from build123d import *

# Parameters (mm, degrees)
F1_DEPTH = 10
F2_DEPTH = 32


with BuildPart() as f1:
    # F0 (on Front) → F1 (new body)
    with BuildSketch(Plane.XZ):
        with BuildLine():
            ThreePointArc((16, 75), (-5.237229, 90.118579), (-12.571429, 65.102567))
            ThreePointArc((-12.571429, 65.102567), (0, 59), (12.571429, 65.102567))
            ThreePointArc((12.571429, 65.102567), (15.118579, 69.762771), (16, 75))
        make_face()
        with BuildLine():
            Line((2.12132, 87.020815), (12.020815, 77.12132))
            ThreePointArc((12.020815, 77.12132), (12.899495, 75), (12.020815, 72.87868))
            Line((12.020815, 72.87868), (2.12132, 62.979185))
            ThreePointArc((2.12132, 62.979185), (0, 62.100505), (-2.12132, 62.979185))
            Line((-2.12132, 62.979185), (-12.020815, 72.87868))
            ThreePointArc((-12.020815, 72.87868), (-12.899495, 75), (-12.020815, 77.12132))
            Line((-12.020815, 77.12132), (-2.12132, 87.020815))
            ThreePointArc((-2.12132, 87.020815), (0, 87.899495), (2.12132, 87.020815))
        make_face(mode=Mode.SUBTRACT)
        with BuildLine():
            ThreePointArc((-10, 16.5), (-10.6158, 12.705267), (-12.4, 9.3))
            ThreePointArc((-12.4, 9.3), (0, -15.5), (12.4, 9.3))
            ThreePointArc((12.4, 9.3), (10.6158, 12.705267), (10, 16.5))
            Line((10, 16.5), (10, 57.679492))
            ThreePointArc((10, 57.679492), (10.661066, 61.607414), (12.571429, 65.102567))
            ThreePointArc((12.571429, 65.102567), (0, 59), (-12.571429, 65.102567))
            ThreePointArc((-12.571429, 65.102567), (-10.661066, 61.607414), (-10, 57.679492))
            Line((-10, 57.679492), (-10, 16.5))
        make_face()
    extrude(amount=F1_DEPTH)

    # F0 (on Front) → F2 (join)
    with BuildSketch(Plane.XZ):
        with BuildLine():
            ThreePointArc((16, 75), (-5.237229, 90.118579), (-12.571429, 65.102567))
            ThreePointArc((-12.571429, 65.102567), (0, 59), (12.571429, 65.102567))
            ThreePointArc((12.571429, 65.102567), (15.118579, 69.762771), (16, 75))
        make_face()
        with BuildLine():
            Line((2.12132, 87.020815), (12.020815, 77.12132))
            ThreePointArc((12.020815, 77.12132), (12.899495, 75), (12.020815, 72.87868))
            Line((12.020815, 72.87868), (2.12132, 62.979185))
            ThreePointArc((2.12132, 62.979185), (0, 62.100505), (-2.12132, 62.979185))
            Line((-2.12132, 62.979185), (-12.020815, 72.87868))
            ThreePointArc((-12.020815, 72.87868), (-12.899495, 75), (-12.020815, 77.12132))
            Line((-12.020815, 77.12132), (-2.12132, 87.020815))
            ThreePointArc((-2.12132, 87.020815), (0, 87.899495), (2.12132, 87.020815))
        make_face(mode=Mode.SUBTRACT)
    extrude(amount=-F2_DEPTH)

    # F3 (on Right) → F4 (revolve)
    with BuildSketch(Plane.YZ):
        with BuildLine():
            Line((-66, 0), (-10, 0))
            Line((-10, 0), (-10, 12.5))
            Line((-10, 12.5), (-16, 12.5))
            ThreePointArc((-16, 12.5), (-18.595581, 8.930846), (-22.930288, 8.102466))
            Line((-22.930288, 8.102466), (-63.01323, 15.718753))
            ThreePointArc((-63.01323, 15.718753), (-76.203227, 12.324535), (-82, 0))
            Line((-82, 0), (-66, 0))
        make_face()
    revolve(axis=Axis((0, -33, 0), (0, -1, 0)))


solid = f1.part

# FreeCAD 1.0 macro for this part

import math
import FreeCAD as App
import Part
import Sketcher
from FreeCAD import Vector
Q = App.Units.Quantity

doc = App.newDocument("Part")
body = doc.addObject("PartDesign::Body", "Body")

# Sketch on XZ plane
sketch1 = doc.addObject("Sketcher::SketchObject", "Sketch")
body.addObject(sketch1)
sketch1.AttachmentSupport = (doc.XZ_Plane, [""])
sketch1.MapMode = "FlatFace"
sketch1.addGeometry(Part.ArcOfCircle(Part.Circle(Vector(0, 75, 0), Vector(0, 0, 1), 16), math.radians(0.000001), math.radians(218.213209)), False)
sketch1.addGeometry(Part.ArcOfCircle(Part.Circle(Vector(-22.000001, 57.679491, 0), Vector(0, 0, 1), 12.000001), math.radians(0.000003), math.radians(38.213213)), False)
sketch1.addGeometry(Part.LineSegment(Vector(-10, 57.679492, 0), Vector(-10, 16.5, 0)), False)
sketch1.addGeometry(Part.ArcOfCircle(Part.Circle(Vector(-21.999994, 16.499998, 0), Vector(0, 0, 1), 11.999994), math.radians(-36.869908), math.radians(0.00001)), False)
sketch1.addGeometry(Part.ArcOfCircle(Part.Circle(Vector(0, 0, 0), Vector(0, 0, 1), 15.5), math.radians(143.130102), math.radians(396.869898)), False)
sketch1.addGeometry(Part.ArcOfCircle(Part.Circle(Vector(21.999994, 16.499998, 0), Vector(0, 0, 1), 11.999994), math.radians(179.99999), math.radians(216.869908)), False)
sketch1.addGeometry(Part.LineSegment(Vector(10, 16.5, 0), Vector(10, 57.679492, 0)), False)
sketch1.addGeometry(Part.ArcOfCircle(Part.Circle(Vector(22.000001, 57.679491, 0), Vector(0, 0, 1), 12.000001), math.radians(141.786787), math.radians(179.999997)), False)
sketch1.addGeometry(Part.ArcOfCircle(Part.Circle(Vector(-0.000003, 75.000001, 0), Vector(0, 0, 1), 16.000003), math.radians(-38.213205), math.radians(-0.000002)), False)
sketch1.addGeometry(Part.ArcOfCircle(Part.Circle(Vector(0, 84.899497, 0), Vector(0, 0, 1), 2.999998), math.radians(44.999978), math.radians(135.000022)), False)
sketch1.addGeometry(Part.LineSegment(Vector(2.12132, 87.020815, 0), Vector(12.020815, 77.12132, 0)), False)
sketch1.addGeometry(Part.ArcOfCircle(Part.Circle(Vector(9.899497, 75, 0), Vector(0, 0, 1), 2.999998), math.radians(-45.000022), math.radians(45.000022)), False)
sketch1.addGeometry(Part.LineSegment(Vector(12.020815, 72.87868, 0), Vector(2.12132, 62.979185, 0)), False)
sketch1.addGeometry(Part.ArcOfCircle(Part.Circle(Vector(0, 65.100503, 0), Vector(0, 0, 1), 2.999998), math.radians(-135.000022), math.radians(-44.999978)), False)
sketch1.addGeometry(Part.LineSegment(Vector(-2.12132, 62.979185, 0), Vector(-12.020815, 72.87868, 0)), False)
sketch1.addGeometry(Part.ArcOfCircle(Part.Circle(Vector(-9.899497, 75, 0), Vector(0, 0, 1), 2.999998), math.radians(134.999978), math.radians(225.000022)), False)
sketch1.addGeometry(Part.LineSegment(Vector(-12.020815, 77.12132, 0), Vector(-2.12132, 87.020815, 0)), False)
sketch1.addConstraint(Sketcher.Constraint("Tangent", 0, 2, 1, 2))
sketch1.addConstraint(Sketcher.Constraint("Tangent", 1, 1, 2, 1))
sketch1.addConstraint(Sketcher.Constraint("Tangent", 2, 2, 3, 2))
sketch1.addConstraint(Sketcher.Constraint("Tangent", 3, 1, 4, 1))
sketch1.addConstraint(Sketcher.Constraint("Tangent", 4, 2, 5, 2))
sketch1.addConstraint(Sketcher.Constraint("Tangent", 5, 1, 6, 1))
sketch1.addConstraint(Sketcher.Constraint("Tangent", 6, 2, 7, 2))
sketch1.addConstraint(Sketcher.Constraint("Tangent", 7, 1, 8, 1))
sketch1.addConstraint(Sketcher.Constraint("Tangent", 8, 2, 0, 1))
sketch1.addConstraint(Sketcher.Constraint("Tangent", 9, 1, 10, 1))
sketch1.addConstraint(Sketcher.Constraint("Tangent", 10, 2, 11, 2))
sketch1.addConstraint(Sketcher.Constraint("Tangent", 11, 1, 12, 1))
sketch1.addConstraint(Sketcher.Constraint("Tangent", 12, 2, 13, 2))
sketch1.addConstraint(Sketcher.Constraint("Tangent", 13, 1, 14, 1))
sketch1.addConstraint(Sketcher.Constraint("Tangent", 14, 2, 15, 2))
sketch1.addConstraint(Sketcher.Constraint("Tangent", 15, 1, 16, 1))
sketch1.addConstraint(Sketcher.Constraint("Tangent", 16, 2, 9, 2))
sketch1.addConstraint(Sketcher.Constraint("Vertical", 2))
sketch1.addConstraint(Sketcher.Constraint("Vertical", 6))
sketch1.addConstraint(Sketcher.Constraint("Coincident", 4, 3, -1, 1))
sketch1.addConstraint(Sketcher.Constraint("Equal", 3, 5))
sketch1.addConstraint(Sketcher.Constraint("Equal", 1, 7))
sketch1.addConstraint(Sketcher.Constraint("Equal", 9, 11))
sketch1.addConstraint(Sketcher.Constraint("Equal", 11, 13))
sketch1.addConstraint(Sketcher.Constraint("Equal", 13, 15))
sketch1.addConstraint(Sketcher.Constraint("Symmetric", 1, 3, 7, 3, -2))
sketch1.addConstraint(Sketcher.Constraint("Symmetric", 11, 3, 15, 3, -2))
sketch1.addConstraint(Sketcher.Constraint("PointOnObject", 0, 3, -2))
sketch1.addConstraint(Sketcher.Constraint("PointOnObject", 9, 3, -2))
sketch1.addConstraint(Sketcher.Constraint("PointOnObject", 13, 3, -2))
sketch1.addConstraint(Sketcher.Constraint("Perpendicular", 10, 12))
sketch1.addConstraint(Sketcher.Constraint("Perpendicular", 12, 14))
sketch1.addConstraint(Sketcher.Constraint("Horizontal", 8, 3, 11, 3))
sketch1.addConstraint(Sketcher.Constraint("Horizontal", 15, 3, 8, 2))
sketch1.addConstraint(Sketcher.Constraint("Radius", 0, Q("16 mm")))
sketch1.addConstraint(Sketcher.Constraint("Radius", 1, Q("12.000001 mm")))
sketch1.addConstraint(Sketcher.Constraint("Radius", 9, Q("2.999998 mm")))
sketch1.addConstraint(Sketcher.Constraint("Radius", 4, Q("15.5 mm")))
sketch1.addConstraint(Sketcher.Constraint("Distance", 10, Q("14 mm")))
sketch1.addConstraint(Sketcher.Constraint("DistanceY", -1, 1, 0, 3, Q("75 mm")))
sketch1.addConstraint(Sketcher.Constraint("DistanceX", 1, 3, -1, 1, Q("22.000001 mm")))
sketch1.addConstraint(Sketcher.Constraint("DistanceY", -1, 1, 2, 2, Q("16.5 mm")))
pad1 = doc.addObject("PartDesign::Pad", "Pad")
body.addObject(pad1)
pad1.Profile = sketch1
pad1.Length = 10

# Sketch on XZ plane
sketch2 = doc.addObject("Sketcher::SketchObject", "Sketch001")
body.addObject(sketch2)
sketch2.AttachmentSupport = (doc.XZ_Plane, [""])
sketch2.MapMode = "FlatFace"
sketch2.addGeometry(Part.ArcOfCircle(Part.Circle(Vector(0, 75, 0), Vector(0, 0, 1), 16), math.radians(0.000001), math.radians(218.213209)), False)
sketch2.addGeometry(Part.ArcOfCircle(Part.Circle(Vector(0, 75.000001, 0), Vector(0, 0, 1), 16.000001), math.radians(-141.786789), math.radians(-38.213211)), False)
sketch2.addGeometry(Part.ArcOfCircle(Part.Circle(Vector(-0.000003, 75.000001, 0), Vector(0, 0, 1), 16.000003), math.radians(-38.213205), math.radians(-0.000002)), False)
sketch2.addGeometry(Part.ArcOfCircle(Part.Circle(Vector(0, 84.899497, 0), Vector(0, 0, 1), 2.999998), math.radians(44.999978), math.radians(135.000022)), False)
sketch2.addGeometry(Part.LineSegment(Vector(2.12132, 87.020815, 0), Vector(12.020815, 77.12132, 0)), False)
sketch2.addGeometry(Part.ArcOfCircle(Part.Circle(Vector(9.899497, 75, 0), Vector(0, 0, 1), 2.999998), math.radians(-45.000022), math.radians(45.000022)), False)
sketch2.addGeometry(Part.LineSegment(Vector(12.020815, 72.87868, 0), Vector(2.12132, 62.979185, 0)), False)
sketch2.addGeometry(Part.ArcOfCircle(Part.Circle(Vector(0, 65.100503, 0), Vector(0, 0, 1), 2.999998), math.radians(-135.000022), math.radians(-44.999978)), False)
sketch2.addGeometry(Part.LineSegment(Vector(-2.12132, 62.979185, 0), Vector(-12.020815, 72.87868, 0)), False)
sketch2.addGeometry(Part.ArcOfCircle(Part.Circle(Vector(-9.899497, 75, 0), Vector(0, 0, 1), 2.999998), math.radians(134.999978), math.radians(225.000022)), False)
sketch2.addGeometry(Part.LineSegment(Vector(-12.020815, 77.12132, 0), Vector(-2.12132, 87.020815, 0)), False)
sketch2.addConstraint(Sketcher.Constraint("Tangent", 0, 2, 1, 1))
sketch2.addConstraint(Sketcher.Constraint("Tangent", 1, 2, 2, 1))
sketch2.addConstraint(Sketcher.Constraint("Tangent", 2, 2, 0, 1))
sketch2.addConstraint(Sketcher.Constraint("Tangent", 3, 1, 4, 1))
sketch2.addConstraint(Sketcher.Constraint("Tangent", 4, 2, 5, 2))
sketch2.addConstraint(Sketcher.Constraint("Tangent", 5, 1, 6, 1))
sketch2.addConstraint(Sketcher.Constraint("Tangent", 6, 2, 7, 2))
sketch2.addConstraint(Sketcher.Constraint("Tangent", 7, 1, 8, 1))
sketch2.addConstraint(Sketcher.Constraint("Tangent", 8, 2, 9, 2))
sketch2.addConstraint(Sketcher.Constraint("Tangent", 9, 1, 10, 1))
sketch2.addConstraint(Sketcher.Constraint("Tangent", 10, 2, 3, 2))
sketch2.addConstraint(Sketcher.Constraint("Equal", 3, 5))
sketch2.addConstraint(Sketcher.Constraint("Equal", 5, 7))
sketch2.addConstraint(Sketcher.Constraint("Equal", 7, 9))
sketch2.addConstraint(Sketcher.Constraint("Symmetric", 5, 3, 9, 3, -2))
sketch2.addConstraint(Sketcher.Constraint("Symmetric", 0, 2, 1, 2, -2))
sketch2.addConstraint(Sketcher.Constraint("PointOnObject", 3, 3, -2))
sketch2.addConstraint(Sketcher.Constraint("PointOnObject", 7, 3, -2))
sketch2.addConstraint(Sketcher.Constraint("Perpendicular", 4, 6))
sketch2.addConstraint(Sketcher.Constraint("Perpendicular", 6, 8))
sketch2.addConstraint(Sketcher.Constraint("Horizontal", 2, 3, 5, 3))
sketch2.addConstraint(Sketcher.Constraint("Horizontal", 9, 3, 2, 2))
sketch2.addConstraint(Sketcher.Constraint("Radius", 0, Q("16 mm")))
sketch2.addConstraint(Sketcher.Constraint("Radius", 3, Q("2.999998 mm")))
sketch2.addConstraint(Sketcher.Constraint("Distance", 4, Q("14 mm")))
sketch2.addConstraint(Sketcher.Constraint("DistanceY", -1, 1, 0, 3, Q("75 mm")))
sketch2.addConstraint(Sketcher.Constraint("DistanceX", 0, 2, -1, 1, Q("12.571429 mm")))
pad2 = doc.addObject("PartDesign::Pad", "Pad001")
body.addObject(pad2)
pad2.Profile = sketch2
pad2.Length = 32
pad2.Reversed = True

# Sketch on YZ plane
sketch3 = doc.addObject("Sketcher::SketchObject", "Sketch002")
body.addObject(sketch3)
sketch3.AttachmentSupport = (doc.YZ_Plane, [""])
sketch3.MapMode = "FlatFace"
sketch3.addGeometry(Part.LineSegment(Vector(-10, 0, 0), Vector(-10, 12.5, 0)), False)
sketch3.addGeometry(Part.LineSegment(Vector(-10, 12.5, 0), Vector(-16, 12.5, 0)), False)
sketch3.addGeometry(Part.ArcOfCircle(Part.Circle(Vector(-21.81025, 13.997, 0), Vector(0, 0, 1), 6.000002), math.radians(-100.75868), math.radians(-14.447927)), False)
sketch3.addGeometry(Part.LineSegment(Vector(-22.930288, 8.102466, 0), Vector(-63.01323, 15.718753, 0)), False)
sketch3.addGeometry(Part.ArcOfCircle(Part.Circle(Vector(-66.000001, 0, 0), Vector(0, 0, 1), 15.999999), math.radians(79.241302), math.radians(180.000002)), False)
sketch3.addGeometry(Part.LineSegment(Vector(-82, 0, 0), Vector(-10, 0, 0)), False)
sketch3.addConstraint(Sketcher.Constraint("Coincident", 0, 2, 1, 1))
sketch3.addConstraint(Sketcher.Constraint("Coincident", 1, 2, 2, 2))
sketch3.addConstraint(Sketcher.Constraint("Tangent", 2, 1, 3, 1))
sketch3.addConstraint(Sketcher.Constraint("Tangent", 3, 2, 4, 1))
sketch3.addConstraint(Sketcher.Constraint("Coincident", 4, 2, 5, 1))
sketch3.addConstraint(Sketcher.Constraint("Coincident", 5, 2, 0, 1))
sketch3.addConstraint(Sketcher.Constraint("Vertical", 0))
sketch3.addConstraint(Sketcher.Constraint("Horizontal", 1))
sketch3.addConstraint(Sketcher.Constraint("Horizontal", 5))
sketch3.addConstraint(Sketcher.Constraint("PointOnObject", 4, 3, -1))
sketch3.addConstraint(Sketcher.Constraint("PointOnObject", 4, 2, -1))
sketch3.addConstraint(Sketcher.Constraint("Radius", 2, Q("6.000002 mm")))
sketch3.addConstraint(Sketcher.Constraint("Radius", 4, Q("15.999999 mm")))
sketch3.addConstraint(Sketcher.Constraint("DistanceX", 1, 2, 1, 1, Q("6 mm")))
sketch3.addConstraint(Sketcher.Constraint("DistanceX", 5, 1, 5, 2, Q("72 mm")))
sketch3.addConstraint(Sketcher.Constraint("DistanceY", 0, 1, 0, 2, Q("12.5 mm")))
sketch3.addConstraint(Sketcher.Constraint("DistanceX", 4, 3, -1, 1, Q("66.000001 mm")))
sketch3.addConstraint(Sketcher.Constraint("DistanceY", -1, 1, 2, 3, Q("13.997 mm")))
revolution = doc.addObject("PartDesign::Revolution", "Revolution")
body.addObject(revolution)
revolution.Profile = sketch3
revolution.ReferenceAxis = (sketch3, ["H_Axis"])
revolution.Angle = 360

doc.recompute()
